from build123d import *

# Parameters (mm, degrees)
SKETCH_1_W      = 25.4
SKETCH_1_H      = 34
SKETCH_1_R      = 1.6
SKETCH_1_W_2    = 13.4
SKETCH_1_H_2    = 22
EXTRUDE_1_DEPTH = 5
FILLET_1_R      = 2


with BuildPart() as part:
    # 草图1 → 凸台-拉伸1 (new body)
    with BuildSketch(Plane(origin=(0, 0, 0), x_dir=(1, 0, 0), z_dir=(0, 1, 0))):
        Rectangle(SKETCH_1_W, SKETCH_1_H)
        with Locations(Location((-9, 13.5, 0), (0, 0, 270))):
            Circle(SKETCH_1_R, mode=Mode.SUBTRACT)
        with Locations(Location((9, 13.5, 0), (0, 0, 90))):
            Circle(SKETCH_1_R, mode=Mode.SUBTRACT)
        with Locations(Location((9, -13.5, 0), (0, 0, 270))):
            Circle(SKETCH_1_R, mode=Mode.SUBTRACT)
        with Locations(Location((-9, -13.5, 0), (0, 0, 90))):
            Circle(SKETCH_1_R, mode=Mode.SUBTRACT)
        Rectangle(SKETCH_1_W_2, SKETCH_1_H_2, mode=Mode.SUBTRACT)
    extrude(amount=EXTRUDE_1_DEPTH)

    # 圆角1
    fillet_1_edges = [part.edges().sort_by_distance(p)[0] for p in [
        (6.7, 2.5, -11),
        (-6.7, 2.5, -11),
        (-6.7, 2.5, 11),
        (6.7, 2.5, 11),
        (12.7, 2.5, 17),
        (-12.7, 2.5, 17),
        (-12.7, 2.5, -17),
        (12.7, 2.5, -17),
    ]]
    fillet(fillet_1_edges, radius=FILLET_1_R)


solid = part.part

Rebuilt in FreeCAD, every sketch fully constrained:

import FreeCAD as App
import Part
import Sketcher
from FreeCAD import Vector
Q = App.Units.Quantity


def edges_at(feature, points):
    """Names of the edges that pass closest to the given points."""
    edges = feature.Shape.Edges
    near = lambda p: min(range(len(edges)), key=lambda i: edges[i].distToShape(Part.Vertex(*p))[0])
    return sorted({f"Edge{near(p) + 1}" for p in points})

doc = App.newDocument("Part")
body = doc.addObject("PartDesign::Body", "Body")

sketch1 = doc.addObject("Sketcher::SketchObject", "Sketch")
body.addObject(sketch1)
sketch1.AttachmentSupport = (doc.XZ_Plane, [""])
sketch1.MapMode = "FlatFace"
sketch1.addGeometry(Part.LineSegment(Vector(-12.7, -17, 0), Vector(-12.7, 17, 0)), False)
sketch1.addGeometry(Part.LineSegment(Vector(-12.7, 17, 0), Vector(12.7, 17, 0)), False)
sketch1.addGeometry(Part.LineSegment(Vector(12.7, 17, 0), Vector(12.7, -17, 0)), False)
sketch1.addGeometry(Part.LineSegment(Vector(12.7, -17, 0), Vector(-12.7, -17, 0)), False)
sketch1.addGeometry(Part.Circle(Vector(-9, 13.5, 0), Vector(0, 0, 1), 1.6), False)
sketch1.addGeometry(Part.Circle(Vector(9, 13.5, 0), Vector(0, 0, 1), 1.6), False)
sketch1.addGeometry(Part.Circle(Vector(-9, -13.5, 0), Vector(0, 0, 1), 1.6), False)
sketch1.addGeometry(Part.LineSegment(Vector(6.7, 11, 0), Vector(-6.7, 11, 0)), False)
sketch1.addGeometry(Part.LineSegment(Vector(-6.7, 11, 0), Vector(-6.7, -11, 0)), False)
sketch1.addGeometry(Part.LineSegment(Vector(-6.7, -11, 0), Vector(6.7, -11, 0)), False)
sketch1.addGeometry(Part.LineSegment(Vector(6.7, -11, 0), Vector(6.7, 11, 0)), False)
sketch1.addGeometry(Part.Circle(Vector(9, -13.5, 0), Vector(0, 0, 1), 1.6), False)
sketch1.addConstraint(Sketcher.Constraint("Coincident", 0, 2, 1, 1))
sketch1.addConstraint(Sketcher.Constraint("Coincident", 1, 2, 2, 1))
sketch1.addConstraint(Sketcher.Constraint("Coincident", 2, 2, 3, 1))
sketch1.addConstraint(Sketcher.Constraint("Coincident", 3, 2, 0, 1))
sketch1.addConstraint(Sketcher.Constraint("Coincident", 7, 2, 8, 1))
sketch1.addConstraint(Sketcher.Constraint("Coincident", 8, 2, 9, 1))
sketch1.addConstraint(Sketcher.Constraint("Coincident", 9, 2, 10, 1))
sketch1.addConstraint(Sketcher.Constraint("Coincident", 10, 2, 7, 1))
sketch1.addConstraint(Sketcher.Constraint("Vertical", 0))
sketch1.addConstraint(Sketcher.Constraint("Horizontal", 1))
sketch1.addConstraint(Sketcher.Constraint("Vertical", 2))
sketch1.addConstraint(Sketcher.Constraint("Horizontal", 3))
sketch1.addConstraint(Sketcher.Constraint("Horizontal", 7))
sketch1.addConstraint(Sketcher.Constraint("Vertical", 8))
sketch1.addConstraint(Sketcher.Constraint("Horizontal", 9))
sketch1.addConstraint(Sketcher.Constraint("Vertical", 10))
sketch1.addConstraint(Sketcher.Constraint("Equal", 4, 5))
sketch1.addConstraint(Sketcher.Constraint("Equal", 5, 6))
sketch1.addConstraint(Sketcher.Constraint("Equal", 6, 11))
sketch1.addConstraint(Sketcher.Constraint("Symmetric", 5, 3, 6, 3, -1, 1))
sketch1.addConstraint(Sketcher.Constraint("Symmetric", 4, 3, 11, 3, -1, 1))
sketch1.addConstraint(Sketcher.Constraint("Symmetric", 0, 2, 2, 2, -1, 1))
sketch1.addConstraint(Sketcher.Constraint("Symmetric", 7, 2, 9, 2, -1, 1))
sketch1.addConstraint(Sketcher.Constraint("Symmetric", 4, 3, 5, 3, -2))
sketch1.addConstraint(Sketcher.Constraint("Diameter", 4, Q("3.2 mm")))
sketch1.addConstraint(Sketcher.Constraint("DistanceY", 0, 1, 0, 2, Q("34 mm")))
sketch1.addConstraint(Sketcher.Constraint("DistanceY", 8, 2, 8, 1, Q("22 mm")))
sketch1.addConstraint(Sketcher.Constraint("DistanceX", 1, 1, 1, 2, Q("25.4 mm")))
sketch1.addConstraint(Sketcher.Constraint("DistanceX", 7, 2, 7, 1, Q("13.4 mm")))
sketch1.addConstraint(Sketcher.Constraint("DistanceX", 4, 3, -1, 1, Q("9 mm")))
sketch1.addConstraint(Sketcher.Constraint("DistanceY", 6, 3, 4, 3, Q("27 mm")))
pad1 = doc.addObject("PartDesign::Pad", "Pad")
body.addObject(pad1)
pad1.Profile = sketch1
pad1.Length = 5
pad1.Reversed = True
doc.recompute()

fillet = doc.addObject("PartDesign::Fillet", "Fillet")
body.addObject(fillet)
fillet.Base = (pad1, edges_at(pad1, [
    (6.7, 2.5, -11),
    (-6.7, 2.5, -11),
    (-6.7, 2.5, 11),
    (6.7, 2.5, 11),
    (12.7, 2.5, 17),
    (-12.7, 2.5, 17),
    (-12.7, 2.5, -17),
    (12.7, 2.5, -17),
]))
fillet.Radius = 2

doc.recompute()
